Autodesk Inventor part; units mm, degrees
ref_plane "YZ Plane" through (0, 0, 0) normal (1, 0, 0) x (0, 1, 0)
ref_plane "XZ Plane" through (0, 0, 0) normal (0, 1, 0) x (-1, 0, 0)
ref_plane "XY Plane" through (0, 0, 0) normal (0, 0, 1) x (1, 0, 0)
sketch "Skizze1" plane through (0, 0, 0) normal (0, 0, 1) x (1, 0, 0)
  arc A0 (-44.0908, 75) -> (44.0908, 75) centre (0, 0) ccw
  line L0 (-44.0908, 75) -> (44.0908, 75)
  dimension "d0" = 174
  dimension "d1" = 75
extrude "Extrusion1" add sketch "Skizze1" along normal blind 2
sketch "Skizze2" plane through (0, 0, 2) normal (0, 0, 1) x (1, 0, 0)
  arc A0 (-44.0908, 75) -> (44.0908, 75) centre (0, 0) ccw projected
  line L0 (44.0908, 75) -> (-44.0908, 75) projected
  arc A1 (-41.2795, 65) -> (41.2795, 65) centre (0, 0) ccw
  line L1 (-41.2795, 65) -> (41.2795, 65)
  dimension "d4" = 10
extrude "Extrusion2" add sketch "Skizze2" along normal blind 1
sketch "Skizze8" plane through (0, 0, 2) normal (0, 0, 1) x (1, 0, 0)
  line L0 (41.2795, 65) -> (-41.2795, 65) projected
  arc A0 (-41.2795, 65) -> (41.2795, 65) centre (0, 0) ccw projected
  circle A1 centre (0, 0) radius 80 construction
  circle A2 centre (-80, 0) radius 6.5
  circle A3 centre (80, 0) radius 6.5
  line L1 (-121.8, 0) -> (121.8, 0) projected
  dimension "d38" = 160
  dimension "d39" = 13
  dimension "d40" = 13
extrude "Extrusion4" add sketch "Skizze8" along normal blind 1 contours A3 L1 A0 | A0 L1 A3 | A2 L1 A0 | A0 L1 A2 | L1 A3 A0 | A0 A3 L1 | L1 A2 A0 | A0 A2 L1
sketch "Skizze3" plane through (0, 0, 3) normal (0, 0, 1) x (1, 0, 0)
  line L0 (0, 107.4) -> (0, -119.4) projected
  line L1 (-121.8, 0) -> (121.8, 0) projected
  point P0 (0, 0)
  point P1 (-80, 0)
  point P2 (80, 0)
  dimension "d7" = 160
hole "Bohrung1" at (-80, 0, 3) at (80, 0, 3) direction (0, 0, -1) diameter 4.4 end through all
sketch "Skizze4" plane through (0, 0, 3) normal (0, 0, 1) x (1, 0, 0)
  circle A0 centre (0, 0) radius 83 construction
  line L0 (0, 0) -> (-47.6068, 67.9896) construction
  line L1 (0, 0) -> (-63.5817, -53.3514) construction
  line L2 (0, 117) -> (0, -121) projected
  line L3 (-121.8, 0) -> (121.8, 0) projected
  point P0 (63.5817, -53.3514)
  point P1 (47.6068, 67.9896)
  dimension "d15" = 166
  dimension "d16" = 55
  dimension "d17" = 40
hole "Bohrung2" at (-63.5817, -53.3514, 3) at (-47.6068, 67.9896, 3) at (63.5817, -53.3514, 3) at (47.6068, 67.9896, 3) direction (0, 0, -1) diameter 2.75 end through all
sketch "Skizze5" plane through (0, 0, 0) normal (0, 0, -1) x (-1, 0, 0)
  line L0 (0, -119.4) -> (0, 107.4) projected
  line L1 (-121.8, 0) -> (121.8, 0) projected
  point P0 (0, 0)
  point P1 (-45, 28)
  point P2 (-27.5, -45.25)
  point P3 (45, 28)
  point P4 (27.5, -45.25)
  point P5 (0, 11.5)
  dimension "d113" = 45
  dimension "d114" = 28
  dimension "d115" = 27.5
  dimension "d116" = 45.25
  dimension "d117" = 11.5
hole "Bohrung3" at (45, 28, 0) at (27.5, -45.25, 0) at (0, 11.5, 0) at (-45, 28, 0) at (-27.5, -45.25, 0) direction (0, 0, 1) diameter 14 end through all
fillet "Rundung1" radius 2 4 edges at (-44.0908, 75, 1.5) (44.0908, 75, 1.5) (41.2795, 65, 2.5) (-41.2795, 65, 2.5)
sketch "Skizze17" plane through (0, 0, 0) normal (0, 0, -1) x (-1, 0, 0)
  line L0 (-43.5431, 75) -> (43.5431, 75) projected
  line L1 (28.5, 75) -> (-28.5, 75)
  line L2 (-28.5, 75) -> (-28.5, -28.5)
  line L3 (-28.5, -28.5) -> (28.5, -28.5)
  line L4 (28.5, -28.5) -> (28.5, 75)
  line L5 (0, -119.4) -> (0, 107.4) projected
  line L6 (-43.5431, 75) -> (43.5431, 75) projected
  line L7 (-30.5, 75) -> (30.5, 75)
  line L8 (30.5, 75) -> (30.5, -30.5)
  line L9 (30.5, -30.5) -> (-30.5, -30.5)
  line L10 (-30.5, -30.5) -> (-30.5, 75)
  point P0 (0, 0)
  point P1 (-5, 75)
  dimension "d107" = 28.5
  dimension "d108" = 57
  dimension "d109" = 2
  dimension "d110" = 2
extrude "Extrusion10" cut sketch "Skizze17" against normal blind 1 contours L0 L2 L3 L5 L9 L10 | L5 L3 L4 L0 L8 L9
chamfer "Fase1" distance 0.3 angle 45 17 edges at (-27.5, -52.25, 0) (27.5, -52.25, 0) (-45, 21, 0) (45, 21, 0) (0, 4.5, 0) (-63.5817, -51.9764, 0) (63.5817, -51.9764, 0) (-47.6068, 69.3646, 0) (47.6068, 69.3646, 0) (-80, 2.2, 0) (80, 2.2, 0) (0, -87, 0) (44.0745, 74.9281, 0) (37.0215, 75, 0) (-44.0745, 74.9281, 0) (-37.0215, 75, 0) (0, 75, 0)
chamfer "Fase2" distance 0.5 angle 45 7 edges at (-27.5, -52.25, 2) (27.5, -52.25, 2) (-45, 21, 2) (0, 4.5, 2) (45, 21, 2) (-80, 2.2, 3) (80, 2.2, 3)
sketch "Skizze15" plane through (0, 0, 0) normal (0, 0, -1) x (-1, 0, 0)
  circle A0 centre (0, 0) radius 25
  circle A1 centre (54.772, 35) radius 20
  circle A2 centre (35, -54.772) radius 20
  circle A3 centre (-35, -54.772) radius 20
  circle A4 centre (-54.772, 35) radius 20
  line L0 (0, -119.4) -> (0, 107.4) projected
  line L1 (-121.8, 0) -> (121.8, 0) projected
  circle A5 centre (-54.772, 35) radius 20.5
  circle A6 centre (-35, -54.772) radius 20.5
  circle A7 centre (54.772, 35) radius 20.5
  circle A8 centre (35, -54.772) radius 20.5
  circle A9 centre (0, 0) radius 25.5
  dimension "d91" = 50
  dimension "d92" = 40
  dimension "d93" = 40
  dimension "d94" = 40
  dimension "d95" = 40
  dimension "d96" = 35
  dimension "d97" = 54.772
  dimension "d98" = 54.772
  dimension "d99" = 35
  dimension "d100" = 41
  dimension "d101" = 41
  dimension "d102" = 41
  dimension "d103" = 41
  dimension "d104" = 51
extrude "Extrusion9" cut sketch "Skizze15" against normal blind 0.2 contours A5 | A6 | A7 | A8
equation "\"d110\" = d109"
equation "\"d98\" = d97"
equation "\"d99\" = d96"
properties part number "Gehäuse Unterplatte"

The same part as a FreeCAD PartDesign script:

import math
import FreeCAD as App
import Part
import Sketcher
from FreeCAD import Vector
Q = App.Units.Quantity


def edges_at(feature, points):
    """Names of the edges that pass closest to the given points."""
    edges = feature.Shape.Edges
    near = lambda p: min(range(len(edges)), key=lambda i: edges[i].distToShape(Part.Vertex(*p))[0])
    return sorted({f"Edge{near(p) + 1}" for p in points})

doc = App.newDocument("Part")
body = doc.addObject("PartDesign::Body", "Body")

sketch1 = body.newObject("Sketcher::SketchObject", "Sketch")
sketch1.AttachmentSupport = (doc.getObject("XY_Plane"), [""])
sketch1.MapMode = "FlatFace"
sketch1.addGeometry([
    Part.LineSegment(Vector(44.0908, 75, 0), Vector(-44.0908, 75, 0)),
    Part.ArcOfCircle(Part.Circle(Vector(0, 0, 0), Vector(0, 0, 1), 86.999992), math.radians(120.450305), math.radians(419.549695)),
], False)
sketch1.addConstraint([
    Sketcher.Constraint("Coincident", 0, 1, 1, 2),
    Sketcher.Constraint("Coincident", 1, 1, 0, 2),
    Sketcher.Constraint("Horizontal", 0),
    Sketcher.Constraint("Coincident", 1, 3, -1, 1),
    Sketcher.Constraint("Radius", 1, Q("87 mm")),
    Sketcher.Constraint("DistanceY", -1, 1, 0, 1, Q("75 mm")),
])
pad1 = body.newObject("PartDesign::Pad", "Pad")
pad1.Profile = sketch1
pad1.Length = 2

sketch2 = body.newObject("Sketcher::SketchObject", "Sketch001")
sketch2.AttachmentSupport = (doc.getObject("XY_Plane"), [""])
sketch2.MapMode = "FlatFace"
sketch2.AttachmentOffset = App.Placement(Vector(0, 0, 2), App.Rotation())
sketch2.addGeometry([
    Part.LineSegment(Vector(44.0908, 75, 0), Vector(-44.0908, 75, 0)),
    Part.ArcOfCircle(Part.Circle(Vector(0, 0, 0), Vector(0, 0, 1), 86.999992), math.radians(120.450305), math.radians(419.549695)),
    Part.ArcOfCircle(Part.Circle(Vector(0, 0, 0), Vector(0, 0, 1), 76.999981), math.radians(122.418374), math.radians(417.581626)),
    Part.LineSegment(Vector(-41.2795, 65, 0), Vector(41.2795, 65, 0)),
], False)
sketch2.addConstraint([
    Sketcher.Constraint("Coincident", 0, 1, 1, 2),
    Sketcher.Constraint("Coincident", 1, 1, 0, 2),
    Sketcher.Constraint("Coincident", 2, 1, 3, 1),
    Sketcher.Constraint("Coincident", 3, 2, 2, 2),
    Sketcher.Constraint("Horizontal", 0),
    Sketcher.Constraint("Horizontal", 3),
    Sketcher.Constraint("Coincident", 1, 3, -1, 1),
    Sketcher.Constraint("Coincident", 2, 3, -1, 1),
    Sketcher.Constraint("Radius", 1, Q("87 mm")),
    Sketcher.Constraint("Radius", 2, Q("77 mm")),
    Sketcher.Constraint("DistanceY", 2, 1, 1, 1, Q("10 mm")),
    Sketcher.Constraint("DistanceY", -1, 1, 0, 1, Q("75 mm")),
])
pad2 = body.newObject("PartDesign::Pad", "Pad001")
pad2.Profile = sketch2
pad2.Length = 1

sketch3 = body.newObject("Sketcher::SketchObject", "Sketch002")
sketch3.AttachmentSupport = (doc.getObject("XY_Plane"), [""])
sketch3.MapMode = "FlatFace"
sketch3.AttachmentOffset = App.Placement(Vector(0, 0, 2), App.Rotation())
sketch3.addGeometry([
    Part.Circle(Vector(80, 0, 0), Vector(0, 0, 1), 6.5),
    Part.Circle(Vector(-80, 0, 0), Vector(0, 0, 1), 6.5),
], False)
sketch3.addConstraint([
    Sketcher.Constraint("Equal", 0, 1),
    Sketcher.Constraint("Symmetric", 0, 3, 1, 3, -1, 1),
    Sketcher.Constraint("PointOnObject", 0, 3, -1),
    Sketcher.Constraint("Diameter", 0, Q("13 mm")),
    Sketcher.Constraint("DistanceX", 1, 3, 0, 3, Q("160 mm")),
])
pad3 = body.newObject("PartDesign::Pad", "Pad002")
pad3.Profile = sketch3
pad3.Length = 1

sketch4 = body.newObject("Sketcher::SketchObject", "Sketch003")
sketch4.AttachmentSupport = (doc.getObject("XY_Plane"), [""])
sketch4.MapMode = "FlatFace"
sketch4.AttachmentOffset = App.Placement(Vector(0, 0, 3), App.Rotation())
sketch4.addGeometry([
    Part.Circle(Vector(-80, 0, 0), Vector(0, 0, 1), 2.2),
    Part.Circle(Vector(80, 0, 0), Vector(0, 0, 1), 2.2),
], False)
sketch4.addConstraint([
    Sketcher.Constraint("Equal", 0, 1),
    Sketcher.Constraint("Symmetric", 0, 3, 1, 3, -1, 1),
    Sketcher.Constraint("PointOnObject", 0, 3, -1),
    Sketcher.Constraint("Diameter", 0, Q("4.4 mm")),
    Sketcher.Constraint("DistanceX", 0, 3, -1, 1, Q("80 mm")),
])
doc.recompute()
hole = body.newObject("PartDesign::Hole", "Hole")
hole.Profile = sketch4
hole.ThreadType = "None"
hole.Diameter = 4.4
hole.DepthType = "ThroughAll"

sketch5 = body.newObject("Sketcher::SketchObject", "Sketch004")
sketch5.AttachmentSupport = (doc.getObject("XY_Plane"), [""])
sketch5.MapMode = "FlatFace"
sketch5.AttachmentOffset = App.Placement(Vector(0, 0, 3), App.Rotation())
sketch5.addGeometry([
    Part.Circle(Vector(-63.5817, -53.3514, 0), Vector(0, 0, 1), 1.375),
    Part.Circle(Vector(-47.6068, 67.9896, 0), Vector(0, 0, 1), 1.375),
    Part.Circle(Vector(63.5817, -53.3514, 0), Vector(0, 0, 1), 1.375),
    Part.Circle(Vector(47.6068, 67.9896, 0), Vector(0, 0, 1), 1.375),
], False)
sketch5.addConstraint([
    Sketcher.Constraint("Equal", 0, 1),
    Sketcher.Constraint("Equal", 1, 2),
    Sketcher.Constraint("Equal", 2, 3),
    Sketcher.Constraint("Symmetric", 0, 3, 2, 3, -2),
    Sketcher.Constraint("Symmetric", 1, 3, 3, 3, -2),
    Sketcher.Constraint("Diameter", 0, Q("2.75 mm")),
    Sketcher.Constraint("DistanceX", 0, 3, 1, 3, Q("15.975 mm")),
    Sketcher.Constraint("DistanceY", 0, 3, 1, 3, Q("121.341 mm")),
    Sketcher.Constraint("DistanceX", 0, 3, -1, 1, Q("63.5817 mm")),
    Sketcher.Constraint("DistanceY", 0, 3, -1, 1, Q("53.3514 mm")),
])
doc.recompute()
hole2 = body.newObject("PartDesign::Hole", "Hole001")
hole2.Profile = sketch5
hole2.ThreadType = "None"
hole2.Diameter = 2.75
hole2.DepthType = "ThroughAll"

sketch6 = body.newObject("Sketcher::SketchObject", "Sketch005")
sketch6.AttachmentSupport = (doc.getObject("XY_Plane"), [""])
sketch6.MapMode = "FlatFace"
sketch6.addGeometry([
    Part.Circle(Vector(45, 28, 0), Vector(0, 0, 1), 7),
    Part.Circle(Vector(27.5, -45.25, 0), Vector(0, 0, 1), 7),
    Part.Circle(Vector(0, 11.5, 0), Vector(0, 0, 1), 7),
    Part.Circle(Vector(-45, 28, 0), Vector(0, 0, 1), 7),
    Part.Circle(Vector(-27.5, -45.25, 0), Vector(0, 0, 1), 7),
], False)
sketch6.addConstraint([
    Sketcher.Constraint("Equal", 0, 1),
    Sketcher.Constraint("Equal", 1, 2),
    Sketcher.Constraint("Equal", 2, 3),
    Sketcher.Constraint("Equal", 3, 4),
    Sketcher.Constraint("Symmetric", 0, 3, 3, 3, -2),
    Sketcher.Constraint("Symmetric", 1, 3, 4, 3, -2),
    Sketcher.Constraint("PointOnObject", 2, 3, -2),
    Sketcher.Constraint("Diameter", 0, Q("14 mm")),
    Sketcher.Constraint("DistanceX", -1, 1, 0, 3, Q("45 mm")),
    Sketcher.Constraint("DistanceY", -1, 1, 0, 3, Q("28 mm")),
    Sketcher.Constraint("DistanceX", 4, 3, 1, 3, Q("55 mm")),
    Sketcher.Constraint("DistanceY", -1, 1, 2, 3, Q("11.5 mm")),
    Sketcher.Constraint("DistanceY", 1, 3, -1, 1, Q("45.25 mm")),
])
doc.recompute()
hole3 = body.newObject("PartDesign::Hole", "Hole002")
hole3.Profile = sketch6
hole3.ThreadType = "None"
hole3.Diameter = 14
hole3.DepthType = "ThroughAll"
hole3.Reversed = True
doc.recompute()

fillet = body.newObject("PartDesign::Fillet", "Fillet")
fillet.Base = (hole3, edges_at(hole3, [
    (-44.091, 75, 1.5),
    (44.091, 75, 1.5),
    (41.279, 65, 2.5),
    (-41.279, 65, 2.5),
]))
fillet.Radius = 2

sketch7 = body.newObject("Sketcher::SketchObject", "Sketch006")
sketch7.AttachmentSupport = (doc.getObject("XY_Plane"), [""])
sketch7.MapMode = "FlatFace"
sketch7.addGeometry([
    Part.LineSegment(Vector(28.5, 75, 0), Vector(30.5, 75, 0)),
    Part.LineSegment(Vector(30.5, 75, 0), Vector(30.5, -30.5, 0)),
    Part.LineSegment(Vector(30.5, -30.5, 0), Vector(-30.5, -30.5, 0)),
    Part.LineSegment(Vector(-30.5, -30.5, 0), Vector(-30.5, 75, 0)),
    Part.LineSegment(Vector(-30.5, 75, 0), Vector(-28.5, 75, 0)),
    Part.LineSegment(Vector(-28.5, 75, 0), Vector(-28.5, -28.5, 0)),
    Part.LineSegment(Vector(-28.5, -28.5, 0), Vector(28.5, -28.5, 0)),
    Part.LineSegment(Vector(28.5, -28.5, 0), Vector(28.5, 75, 0)),
], False)
sketch7.addConstraint([
    Sketcher.Constraint("Coincident", 0, 2, 1, 1),
    Sketcher.Constraint("Coincident", 1, 2, 2, 1),
    Sketcher.Constraint("Coincident", 2, 2, 3, 1),
    Sketcher.Constraint("Coincident", 3, 2, 4, 1),
    Sketcher.Constraint("Coincident", 4, 2, 5, 1),
    Sketcher.Constraint("Coincident", 5, 2, 6, 1),
    Sketcher.Constraint("Coincident", 6, 2, 7, 1),
    Sketcher.Constraint("Coincident", 7, 2, 0, 1),
    Sketcher.Constraint("Horizontal", 0),
    Sketcher.Constraint("Vertical", 1),
    Sketcher.Constraint("Horizontal", 2),
    Sketcher.Constraint("Vertical", 3),
    Sketcher.Constraint("Horizontal", 4),
    Sketcher.Constraint("Vertical", 5),
    Sketcher.Constraint("Horizontal", 6),
    Sketcher.Constraint("Vertical", 7),
    Sketcher.Constraint("Symmetric", 0, 2, 3, 2, -2),
    Sketcher.Constraint("Equal", 0, 4),
    Sketcher.Constraint("DistanceX", 0, 1, 0, 2, Q("2 mm")),
    Sketcher.Constraint("DistanceX", 6, 1, 6, 2, Q("57 mm")),
    Sketcher.Constraint("DistanceY", 2, 2, 5, 2, Q("2 mm")),
    Sketcher.Constraint("DistanceY", 5, 2, -1, 1, Q("28.5 mm")),
    Sketcher.Constraint("DistanceY", 1, 2, 1, 1, Q("105.5 mm")),
])
pocket1 = body.newObject("PartDesign::Pocket", "Pocket")
pocket1.Profile = sketch7
pocket1.Length = 1
pocket1.Reversed = True
doc.recompute()

chamfer = body.newObject("PartDesign::Chamfer", "Chamfer")
chamfer.Base = (pocket1, edges_at(pocket1, [
    (-27.5, -52.25, 0),
    (27.5, -52.25, 0),
    (-45, 21, 0),
    (45, 21, 0),
    (0, 4.5, 0),
    (-63.582, -51.976, 0),
    (63.582, -51.976, 0),
    (-47.607, 69.365, 0),
    (47.607, 69.365, 0),
    (-80, 2.2, 0),
    (80, 2.2, 0),
    (0, -87, 0),
    (44.075, 74.928, 0),
    (37.022, 75, 0),
    (-44.075, 74.928, 0),
    (-37.022, 75, 0),
    (0, 75, 0),
]))
chamfer.Size = 0.3
doc.recompute()

chamfer2 = body.newObject("PartDesign::Chamfer", "Chamfer001")
chamfer2.Base = (chamfer, edges_at(chamfer, [
    (-27.5, -52.25, 2),
    (27.5, -52.25, 2),
    (-45, 21, 2),
    (0, 4.5, 2),
    (45, 21, 2),
    (-80, 2.2, 3),
    (80, 2.2, 3),
]))
chamfer2.Size = 0.5

sketch8 = body.newObject("Sketcher::SketchObject", "Sketch007")
sketch8.AttachmentSupport = (doc.getObject("XY_Plane"), [""])
sketch8.MapMode = "FlatFace"
sketch8.addGeometry([
    Part.Circle(Vector(54.772, 35, 0), Vector(0, 0, 1), 20.5),
    Part.Circle(Vector(54.772, 35, 0), Vector(0, 0, 1), 20),
    Part.Circle(Vector(35, -54.772, 0), Vector(0, 0, 1), 20.5),
    Part.Circle(Vector(35, -54.772, 0), Vector(0, 0, 1), 20),
    Part.Circle(Vector(-54.772, 35, 0), Vector(0, 0, 1), 20.5),
    Part.Circle(Vector(-54.772, 35, 0), Vector(0, 0, 1), 20),
    Part.Circle(Vector(-35, -54.772, 0), Vector(0, 0, 1), 20.5),
    Part.Circle(Vector(-35, -54.772, 0), Vector(0, 0, 1), 20),
], False)
sketch8.addConstraint([
    Sketcher.Constraint("Coincident", 1, 3, 0, 3),
    Sketcher.Constraint("Coincident", 3, 3, 2, 3),
    Sketcher.Constraint("Coincident", 5, 3, 4, 3),
    Sketcher.Constraint("Coincident", 7, 3, 6, 3),
    Sketcher.Constraint("Equal", 0, 2),
    Sketcher.Constraint("Equal", 1, 3),
    Sketcher.Constraint("Equal", 2, 4),
    Sketcher.Constraint("Equal", 3, 5),
    Sketcher.Constraint("Equal", 4, 6),
    Sketcher.Constraint("Equal", 5, 7),
    Sketcher.Constraint("Symmetric", 0, 3, 4, 3, -2),
    Sketcher.Constraint("Symmetric", 2, 3, 6, 3, -2),
    Sketcher.Constraint("Diameter", 0, Q("41 mm")),
    Sketcher.Constraint("Diameter", 1, Q("40 mm")),
    Sketcher.Constraint("DistanceY", -1, 1, 0, 3, Q("35 mm")),
    Sketcher.Constraint("DistanceX", -1, 1, 2, 3, Q("35 mm")),
    Sketcher.Constraint("DistanceX", -1, 1, 0, 3, Q("54.772 mm")),
    Sketcher.Constraint("DistanceY", 2, 3, -1, 1, Q("54.772 mm")),
])
pocket2 = body.newObject("PartDesign::Pocket", "Pocket001")
pocket2.Profile = sketch8
pocket2.Length = 0.2
pocket2.Reversed = True

doc.recompute()
